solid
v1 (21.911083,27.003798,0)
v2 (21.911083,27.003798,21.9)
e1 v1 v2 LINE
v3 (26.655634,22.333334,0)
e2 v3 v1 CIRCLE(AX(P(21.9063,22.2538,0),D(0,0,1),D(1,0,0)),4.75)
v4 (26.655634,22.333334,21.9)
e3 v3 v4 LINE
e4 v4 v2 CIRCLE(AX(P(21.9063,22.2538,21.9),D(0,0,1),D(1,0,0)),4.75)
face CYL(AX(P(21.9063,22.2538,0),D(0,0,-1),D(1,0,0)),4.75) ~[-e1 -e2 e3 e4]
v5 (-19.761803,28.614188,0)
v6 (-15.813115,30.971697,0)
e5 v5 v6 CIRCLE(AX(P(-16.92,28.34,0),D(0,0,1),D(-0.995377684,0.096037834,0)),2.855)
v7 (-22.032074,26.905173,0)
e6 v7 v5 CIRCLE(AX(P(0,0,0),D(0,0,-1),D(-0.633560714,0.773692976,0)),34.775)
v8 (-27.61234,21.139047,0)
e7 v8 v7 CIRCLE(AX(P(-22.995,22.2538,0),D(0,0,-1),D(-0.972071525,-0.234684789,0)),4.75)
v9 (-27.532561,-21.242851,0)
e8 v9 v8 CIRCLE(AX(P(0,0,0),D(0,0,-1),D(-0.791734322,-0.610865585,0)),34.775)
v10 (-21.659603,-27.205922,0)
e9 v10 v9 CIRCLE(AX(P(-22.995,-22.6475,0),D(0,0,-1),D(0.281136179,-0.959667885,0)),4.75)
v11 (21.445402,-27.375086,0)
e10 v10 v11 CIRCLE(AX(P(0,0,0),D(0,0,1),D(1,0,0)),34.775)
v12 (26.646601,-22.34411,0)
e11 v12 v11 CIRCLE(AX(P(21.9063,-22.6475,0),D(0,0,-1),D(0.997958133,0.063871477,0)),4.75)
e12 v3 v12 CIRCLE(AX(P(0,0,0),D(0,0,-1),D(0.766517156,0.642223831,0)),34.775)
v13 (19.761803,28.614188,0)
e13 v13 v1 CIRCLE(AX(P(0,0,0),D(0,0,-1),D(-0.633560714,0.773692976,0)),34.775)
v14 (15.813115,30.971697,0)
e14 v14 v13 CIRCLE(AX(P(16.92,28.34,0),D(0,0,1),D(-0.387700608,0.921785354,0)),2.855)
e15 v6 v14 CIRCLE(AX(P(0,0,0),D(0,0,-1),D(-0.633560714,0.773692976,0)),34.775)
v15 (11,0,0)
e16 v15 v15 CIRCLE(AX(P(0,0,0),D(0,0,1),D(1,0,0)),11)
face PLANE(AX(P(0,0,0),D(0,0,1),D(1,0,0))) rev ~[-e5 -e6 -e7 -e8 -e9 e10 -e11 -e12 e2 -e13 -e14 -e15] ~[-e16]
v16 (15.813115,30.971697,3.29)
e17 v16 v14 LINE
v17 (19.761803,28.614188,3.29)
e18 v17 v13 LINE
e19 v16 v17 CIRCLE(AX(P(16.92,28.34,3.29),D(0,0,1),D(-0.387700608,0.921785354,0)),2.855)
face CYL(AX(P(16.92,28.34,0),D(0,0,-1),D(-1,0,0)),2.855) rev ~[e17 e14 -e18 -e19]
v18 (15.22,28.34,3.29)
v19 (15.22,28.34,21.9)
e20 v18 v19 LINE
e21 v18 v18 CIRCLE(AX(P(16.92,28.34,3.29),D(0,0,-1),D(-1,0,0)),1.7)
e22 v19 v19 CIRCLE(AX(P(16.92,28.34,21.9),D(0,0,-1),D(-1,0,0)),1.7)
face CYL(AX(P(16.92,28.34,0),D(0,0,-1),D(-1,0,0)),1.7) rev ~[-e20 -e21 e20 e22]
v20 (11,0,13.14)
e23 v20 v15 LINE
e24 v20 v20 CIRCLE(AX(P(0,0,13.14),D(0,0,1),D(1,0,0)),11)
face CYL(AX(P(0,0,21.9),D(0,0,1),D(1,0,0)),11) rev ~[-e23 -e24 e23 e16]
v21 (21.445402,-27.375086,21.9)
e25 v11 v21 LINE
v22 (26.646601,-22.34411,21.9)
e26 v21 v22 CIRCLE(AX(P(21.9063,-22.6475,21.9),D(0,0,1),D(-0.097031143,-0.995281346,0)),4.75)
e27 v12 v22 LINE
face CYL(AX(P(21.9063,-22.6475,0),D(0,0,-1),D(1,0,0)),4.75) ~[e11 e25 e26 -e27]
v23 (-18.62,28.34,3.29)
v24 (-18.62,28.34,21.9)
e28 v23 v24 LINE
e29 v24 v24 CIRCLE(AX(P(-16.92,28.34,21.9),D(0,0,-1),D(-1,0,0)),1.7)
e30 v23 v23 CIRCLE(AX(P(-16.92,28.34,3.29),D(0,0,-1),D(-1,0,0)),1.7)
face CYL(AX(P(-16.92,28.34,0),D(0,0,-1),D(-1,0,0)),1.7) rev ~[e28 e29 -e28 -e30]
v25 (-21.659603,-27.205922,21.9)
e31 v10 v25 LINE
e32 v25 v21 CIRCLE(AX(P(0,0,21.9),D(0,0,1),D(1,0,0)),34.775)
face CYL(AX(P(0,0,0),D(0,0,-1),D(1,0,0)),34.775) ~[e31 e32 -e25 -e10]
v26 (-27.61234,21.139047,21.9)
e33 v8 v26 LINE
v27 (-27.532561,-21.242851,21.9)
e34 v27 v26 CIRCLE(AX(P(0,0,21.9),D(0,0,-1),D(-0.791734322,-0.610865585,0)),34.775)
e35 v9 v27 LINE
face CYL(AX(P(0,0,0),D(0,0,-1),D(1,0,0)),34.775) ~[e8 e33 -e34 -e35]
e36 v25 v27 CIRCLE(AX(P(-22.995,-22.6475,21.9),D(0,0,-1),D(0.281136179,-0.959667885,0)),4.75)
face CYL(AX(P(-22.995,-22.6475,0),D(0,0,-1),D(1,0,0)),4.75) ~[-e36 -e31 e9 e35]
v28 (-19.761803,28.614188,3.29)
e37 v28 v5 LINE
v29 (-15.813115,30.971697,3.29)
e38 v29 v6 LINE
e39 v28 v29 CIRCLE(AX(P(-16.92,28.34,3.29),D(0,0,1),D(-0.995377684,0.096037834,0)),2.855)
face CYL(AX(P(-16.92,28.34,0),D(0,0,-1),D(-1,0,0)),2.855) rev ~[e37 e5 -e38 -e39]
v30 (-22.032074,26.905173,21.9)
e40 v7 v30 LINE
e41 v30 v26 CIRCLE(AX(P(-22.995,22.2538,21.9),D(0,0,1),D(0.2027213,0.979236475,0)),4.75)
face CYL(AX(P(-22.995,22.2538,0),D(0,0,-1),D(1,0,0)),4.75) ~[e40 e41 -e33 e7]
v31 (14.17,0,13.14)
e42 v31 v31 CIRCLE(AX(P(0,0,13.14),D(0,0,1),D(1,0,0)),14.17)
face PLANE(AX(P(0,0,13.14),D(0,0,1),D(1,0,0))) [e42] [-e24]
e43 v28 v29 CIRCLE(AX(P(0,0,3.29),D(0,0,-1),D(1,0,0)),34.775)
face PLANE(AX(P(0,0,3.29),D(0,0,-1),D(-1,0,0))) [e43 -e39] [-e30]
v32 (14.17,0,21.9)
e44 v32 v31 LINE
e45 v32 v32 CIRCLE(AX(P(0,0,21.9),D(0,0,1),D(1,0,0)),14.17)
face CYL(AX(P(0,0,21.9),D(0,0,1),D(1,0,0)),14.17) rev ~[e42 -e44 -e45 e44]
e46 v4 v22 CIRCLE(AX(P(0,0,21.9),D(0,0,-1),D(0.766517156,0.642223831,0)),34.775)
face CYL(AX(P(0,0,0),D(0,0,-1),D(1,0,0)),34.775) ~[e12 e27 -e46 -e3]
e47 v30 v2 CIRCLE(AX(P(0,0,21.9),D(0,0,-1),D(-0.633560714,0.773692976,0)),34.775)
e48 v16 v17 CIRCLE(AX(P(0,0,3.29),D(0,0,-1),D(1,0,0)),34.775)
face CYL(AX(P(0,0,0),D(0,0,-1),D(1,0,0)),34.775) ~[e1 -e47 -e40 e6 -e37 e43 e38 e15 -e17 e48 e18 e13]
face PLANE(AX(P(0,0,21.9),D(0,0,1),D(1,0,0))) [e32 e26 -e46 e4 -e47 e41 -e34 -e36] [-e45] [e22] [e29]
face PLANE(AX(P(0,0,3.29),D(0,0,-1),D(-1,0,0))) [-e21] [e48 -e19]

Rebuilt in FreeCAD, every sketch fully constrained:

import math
import FreeCAD as App
import Part
import Sketcher

V = App.Vector
Q = App.Units.Quantity

doc = App.newDocument("Part")
params = doc.addObject("Spreadsheet::Sheet", "Params")
for row, (alias, value) in enumerate([
    ("sketch1_radius", "4.75 mm"),
    ("sketch1_radius2", "4.75 mm"),
    ("sketch1_radius3", "4.75 mm"),
    ("sketch1_radius4", "4.75 mm"),
    ("pad1_length", "21.9 mm"),
    ("sketch2_diameter", "22 mm"),
    ("pocket1_length", "21.9 mm"),
    ("sketch3_diameter", "28.34 mm"),
    ("pocket2_length", "8.76 mm"),
    ("sketch4_diameter", "3.4 mm"),
    ("sketch5_diameter", "5.71 mm"),
    ("sketch5_diameter2", "3.4 mm"),
    ("pocket4_length", "3.29 mm"),
], start=1):
    params.set(f"A{row}", alias)
    params.set(f"B{row}", "=" + value)
    params.setAlias(f"B{row}", alias)

body = doc.addObject("PartDesign::Body", "Body")

# Sketch on XY plane
sketch1 = doc.addObject("Sketcher::SketchObject", "Sketch")
body.addObject(sketch1)
sketch1.AttachmentSupport = (doc.XY_Plane, [""])
sketch1.MapMode = "FlatFace"
sketch1.addGeometry(Part.ArcOfCircle(Part.Circle(V(-22.995, -22.6475, 0), V(0, 0, 1), 4.75), math.radians(162.799545), math.radians(286.328027)), False)
sketch1.addGeometry(Part.ArcOfCircle(Part.Circle(V(0, 0, 0), V(0, 0, 1), 34.775), math.radians(-128.524545), math.radians(-51.925163)), False)
sketch1.addGeometry(Part.ArcOfCircle(Part.Circle(V(21.9063, -22.6475, 0), V(0, 0, 1), 4.75), math.radians(-95.568236), math.radians(3.662059)), False)
sketch1.addGeometry(Part.ArcOfCircle(Part.Circle(V(0, 0, 0), V(0, 0, 1), 34.775), math.radians(-39.981014), math.radians(39.957846)), False)
sketch1.addGeometry(Part.ArcOfCircle(Part.Circle(V(21.9063, 22.2538, 0), V(0, 0, 1), 4.75), math.radians(0.959402), math.radians(89.942311)), False)
sketch1.addGeometry(Part.ArcOfCircle(Part.Circle(V(0, 0, 0), V(0, 0, 1), 34.775), math.radians(50.943868), math.radians(129.313317)), False)
sketch1.addGeometry(Part.ArcOfCircle(Part.Circle(V(-22.995, 22.2538, 0), V(0, 0, 1), 4.75), math.radians(78.303861), math.radians(193.573043)), False)
sketch1.addGeometry(Part.ArcOfCircle(Part.Circle(V(0, 0, 0), V(0, 0, 1), 34.775), math.radians(142.563587), math.radians(217.652117)), False)
sketch1.addConstraint(Sketcher.Constraint("Coincident", 0, 2, 1, 1))
sketch1.addConstraint(Sketcher.Constraint("Coincident", 1, 2, 2, 1))
sketch1.addConstraint(Sketcher.Constraint("Coincident", 2, 2, 3, 1))
sketch1.addConstraint(Sketcher.Constraint("Coincident", 3, 2, 4, 1))
sketch1.addConstraint(Sketcher.Constraint("Coincident", 4, 2, 5, 1))
sketch1.addConstraint(Sketcher.Constraint("Coincident", 5, 2, 6, 1))
sketch1.addConstraint(Sketcher.Constraint("Coincident", 6, 2, 7, 1))
sketch1.addConstraint(Sketcher.Constraint("Coincident", 7, 2, 0, 1))
sketch1.addConstraint(Sketcher.Constraint("Coincident", 1, 3, -1, 1))
sketch1.addConstraint(Sketcher.Constraint("Coincident", 3, 3, -1, 1))
sketch1.addConstraint(Sketcher.Constraint("Coincident", 5, 3, -1, 1))
sketch1.addConstraint(Sketcher.Constraint("Coincident", 7, 3, -1, 1))
sketch1.addConstraint(Sketcher.Constraint("Radius", 0, Q("4.75 mm")))
sketch1.addConstraint(Sketcher.Constraint("Radius", 2, Q("4.75 mm")))
sketch1.addConstraint(Sketcher.Constraint("Radius", 4, Q("4.75 mm")))
sketch1.addConstraint(Sketcher.Constraint("Radius", 6, Q("4.75 mm")))
sketch1.addConstraint(Sketcher.Constraint("Radius", 1, Q("34.775 mm")))
sketch1.addConstraint(Sketcher.Constraint("Radius", 3, Q("34.775 mm")))
sketch1.addConstraint(Sketcher.Constraint("Radius", 5, Q("34.775 mm")))
sketch1.addConstraint(Sketcher.Constraint("Radius", 7, Q("34.775 mm")))
sketch1.addConstraint(Sketcher.Constraint("DistanceX", 0, 3, -1, 1, Q("22.995 mm")))
sketch1.addConstraint(Sketcher.Constraint("DistanceX", 6, 3, -1, 1, Q("22.995 mm")))
sketch1.addConstraint(Sketcher.Constraint("DistanceY", 0, 2, -1, 1, Q("27.206 mm")))
sketch1.addConstraint(Sketcher.Constraint("DistanceY", 1, 2, -1, 1, Q("27.375 mm")))
sketch1.addConstraint(Sketcher.Constraint("DistanceY", 2, 2, -1, 1, Q("22.344 mm")))
sketch1.addConstraint(Sketcher.Constraint("DistanceX", -1, 1, 4, 2, Q("21.911 mm")))
sketch1.addConstraint(Sketcher.Constraint("DistanceX", 5, 2, -1, 1, Q("22.032 mm")))
sketch1.addConstraint(Sketcher.Constraint("DistanceX", -1, 1, 4, 3, Q("21.9063 mm")))
sketch1.setExpression("Constraints[12]", "Params.sketch1_radius")
sketch1.setExpression("Constraints[13]", "Params.sketch1_radius2")
sketch1.setExpression("Constraints[14]", "Params.sketch1_radius3")
sketch1.setExpression("Constraints[15]", "Params.sketch1_radius4")
pad1 = doc.addObject("PartDesign::Pad", "Pad")
body.addObject(pad1)
pad1.Profile = sketch1
pad1.setExpression("Length", "Params.pad1_length")

# Sketch on XY plane
sketch2 = doc.addObject("Sketcher::SketchObject", "Sketch001")
body.addObject(sketch2)
sketch2.AttachmentSupport = (doc.XY_Plane, [""])
sketch2.MapMode = "FlatFace"
sketch2.AttachmentOffset = App.Placement(V(0, 0, 21.9), App.Rotation())
sketch2.addGeometry(Part.Circle(V(0, 0, 0), V(0, 0, 1), 11), False)
sketch2.addConstraint(Sketcher.Constraint("Coincident", 0, 3, -1, 1))
sketch2.addConstraint(Sketcher.Constraint("Diameter", 0, Q("22 mm")))
sketch2.setExpression("Constraints[1]", "Params.sketch2_diameter")
pocket1 = doc.addObject("PartDesign::Pocket", "Pocket")
body.addObject(pocket1)
pocket1.Profile = sketch2
pocket1.setExpression("Length", "Params.pocket1_length")

# Sketch on XY plane
sketch3 = doc.addObject("Sketcher::SketchObject", "Sketch002")
body.addObject(sketch3)
sketch3.AttachmentSupport = (doc.XY_Plane, [""])
sketch3.MapMode = "FlatFace"
sketch3.AttachmentOffset = App.Placement(V(0, 0, 21.9), App.Rotation())
sketch3.addGeometry(Part.Circle(V(0, 0, 0), V(0, 0, 1), 14.17), False)
sketch3.addConstraint(Sketcher.Constraint("Coincident", 0, 3, -1, 1))
sketch3.addConstraint(Sketcher.Constraint("Diameter", 0, Q("28.34 mm")))
sketch3.setExpression("Constraints[1]", "Params.sketch3_diameter")
pocket2 = doc.addObject("PartDesign::Pocket", "Pocket001")
body.addObject(pocket2)
pocket2.Profile = sketch3
pocket2.setExpression("Length", "Params.pocket2_length")

# Sketch on XY plane
sketch4 = doc.addObject("Sketcher::SketchObject", "Sketch003")
body.addObject(sketch4)
sketch4.AttachmentSupport = (doc.XY_Plane, [""])
sketch4.MapMode = "FlatFace"
sketch4.addGeometry(Part.Circle(V(16.92, 28.34, 0), V(0, 0, 1), 1.7), False)
sketch4.addGeometry(Part.Circle(V(-16.92, 28.34, 0), V(0, 0, 1), 1.7), False)
sketch4.addConstraint(Sketcher.Constraint("Equal", 0, 1))
sketch4.addConstraint(Sketcher.Constraint("Symmetric", 0, 3, 1, 3, -2))
sketch4.addConstraint(Sketcher.Constraint("Diameter", 0, Q("3.4 mm")))
sketch4.addConstraint(Sketcher.Constraint("DistanceX", -1, 1, 0, 3, Q("16.92 mm")))
sketch4.addConstraint(Sketcher.Constraint("DistanceY", -1, 1, 0, 3, Q("28.34 mm")))
sketch4.setExpression("Constraints[2]", "Params.sketch4_diameter")
pocket3 = doc.addObject("PartDesign::Pocket", "Pocket002")
body.addObject(pocket3)
pocket3.Profile = sketch4
pocket3.Type = "ThroughAll"
pocket3.Reversed = True

# Sketch on XY plane
sketch5 = doc.addObject("Sketcher::SketchObject", "Sketch004")
body.addObject(sketch5)
sketch5.AttachmentSupport = (doc.XY_Plane, [""])
sketch5.MapMode = "FlatFace"
sketch5.addGeometry(Part.Circle(V(16.92, 28.34, 0), V(0, 0, 1), 2.855), False)
sketch5.addGeometry(Part.Circle(V(16.92, 28.34, 0), V(0, 0, 1), 1.7), False)
sketch5.addGeometry(Part.Circle(V(-16.92, 28.34, 0), V(0, 0, 1), 2.855), False)
sketch5.addConstraint(Sketcher.Constraint("Coincident", 1, 3, 0, 3))
sketch5.addConstraint(Sketcher.Constraint("Equal", 0, 2))
sketch5.addConstraint(Sketcher.Constraint("Symmetric", 0, 3, 2, 3, -2))
sketch5.addConstraint(Sketcher.Constraint("Diameter", 0, Q("5.71 mm")))
sketch5.addConstraint(Sketcher.Constraint("Diameter", 1, Q("3.4 mm")))
sketch5.addConstraint(Sketcher.Constraint("DistanceX", -1, 1, 0, 3, Q("16.92 mm")))
sketch5.addConstraint(Sketcher.Constraint("DistanceY", -1, 1, 0, 3, Q("28.34 mm")))
sketch5.setExpression("Constraints[3]", "Params.sketch5_diameter")
sketch5.setExpression("Constraints[4]", "Params.sketch5_diameter2")
pocket4 = doc.addObject("PartDesign::Pocket", "Pocket003")
body.addObject(pocket4)
pocket4.Profile = sketch5
pocket4.setExpression("Length", "Params.pocket4_length")
pocket4.Reversed = True

doc.recompute()
